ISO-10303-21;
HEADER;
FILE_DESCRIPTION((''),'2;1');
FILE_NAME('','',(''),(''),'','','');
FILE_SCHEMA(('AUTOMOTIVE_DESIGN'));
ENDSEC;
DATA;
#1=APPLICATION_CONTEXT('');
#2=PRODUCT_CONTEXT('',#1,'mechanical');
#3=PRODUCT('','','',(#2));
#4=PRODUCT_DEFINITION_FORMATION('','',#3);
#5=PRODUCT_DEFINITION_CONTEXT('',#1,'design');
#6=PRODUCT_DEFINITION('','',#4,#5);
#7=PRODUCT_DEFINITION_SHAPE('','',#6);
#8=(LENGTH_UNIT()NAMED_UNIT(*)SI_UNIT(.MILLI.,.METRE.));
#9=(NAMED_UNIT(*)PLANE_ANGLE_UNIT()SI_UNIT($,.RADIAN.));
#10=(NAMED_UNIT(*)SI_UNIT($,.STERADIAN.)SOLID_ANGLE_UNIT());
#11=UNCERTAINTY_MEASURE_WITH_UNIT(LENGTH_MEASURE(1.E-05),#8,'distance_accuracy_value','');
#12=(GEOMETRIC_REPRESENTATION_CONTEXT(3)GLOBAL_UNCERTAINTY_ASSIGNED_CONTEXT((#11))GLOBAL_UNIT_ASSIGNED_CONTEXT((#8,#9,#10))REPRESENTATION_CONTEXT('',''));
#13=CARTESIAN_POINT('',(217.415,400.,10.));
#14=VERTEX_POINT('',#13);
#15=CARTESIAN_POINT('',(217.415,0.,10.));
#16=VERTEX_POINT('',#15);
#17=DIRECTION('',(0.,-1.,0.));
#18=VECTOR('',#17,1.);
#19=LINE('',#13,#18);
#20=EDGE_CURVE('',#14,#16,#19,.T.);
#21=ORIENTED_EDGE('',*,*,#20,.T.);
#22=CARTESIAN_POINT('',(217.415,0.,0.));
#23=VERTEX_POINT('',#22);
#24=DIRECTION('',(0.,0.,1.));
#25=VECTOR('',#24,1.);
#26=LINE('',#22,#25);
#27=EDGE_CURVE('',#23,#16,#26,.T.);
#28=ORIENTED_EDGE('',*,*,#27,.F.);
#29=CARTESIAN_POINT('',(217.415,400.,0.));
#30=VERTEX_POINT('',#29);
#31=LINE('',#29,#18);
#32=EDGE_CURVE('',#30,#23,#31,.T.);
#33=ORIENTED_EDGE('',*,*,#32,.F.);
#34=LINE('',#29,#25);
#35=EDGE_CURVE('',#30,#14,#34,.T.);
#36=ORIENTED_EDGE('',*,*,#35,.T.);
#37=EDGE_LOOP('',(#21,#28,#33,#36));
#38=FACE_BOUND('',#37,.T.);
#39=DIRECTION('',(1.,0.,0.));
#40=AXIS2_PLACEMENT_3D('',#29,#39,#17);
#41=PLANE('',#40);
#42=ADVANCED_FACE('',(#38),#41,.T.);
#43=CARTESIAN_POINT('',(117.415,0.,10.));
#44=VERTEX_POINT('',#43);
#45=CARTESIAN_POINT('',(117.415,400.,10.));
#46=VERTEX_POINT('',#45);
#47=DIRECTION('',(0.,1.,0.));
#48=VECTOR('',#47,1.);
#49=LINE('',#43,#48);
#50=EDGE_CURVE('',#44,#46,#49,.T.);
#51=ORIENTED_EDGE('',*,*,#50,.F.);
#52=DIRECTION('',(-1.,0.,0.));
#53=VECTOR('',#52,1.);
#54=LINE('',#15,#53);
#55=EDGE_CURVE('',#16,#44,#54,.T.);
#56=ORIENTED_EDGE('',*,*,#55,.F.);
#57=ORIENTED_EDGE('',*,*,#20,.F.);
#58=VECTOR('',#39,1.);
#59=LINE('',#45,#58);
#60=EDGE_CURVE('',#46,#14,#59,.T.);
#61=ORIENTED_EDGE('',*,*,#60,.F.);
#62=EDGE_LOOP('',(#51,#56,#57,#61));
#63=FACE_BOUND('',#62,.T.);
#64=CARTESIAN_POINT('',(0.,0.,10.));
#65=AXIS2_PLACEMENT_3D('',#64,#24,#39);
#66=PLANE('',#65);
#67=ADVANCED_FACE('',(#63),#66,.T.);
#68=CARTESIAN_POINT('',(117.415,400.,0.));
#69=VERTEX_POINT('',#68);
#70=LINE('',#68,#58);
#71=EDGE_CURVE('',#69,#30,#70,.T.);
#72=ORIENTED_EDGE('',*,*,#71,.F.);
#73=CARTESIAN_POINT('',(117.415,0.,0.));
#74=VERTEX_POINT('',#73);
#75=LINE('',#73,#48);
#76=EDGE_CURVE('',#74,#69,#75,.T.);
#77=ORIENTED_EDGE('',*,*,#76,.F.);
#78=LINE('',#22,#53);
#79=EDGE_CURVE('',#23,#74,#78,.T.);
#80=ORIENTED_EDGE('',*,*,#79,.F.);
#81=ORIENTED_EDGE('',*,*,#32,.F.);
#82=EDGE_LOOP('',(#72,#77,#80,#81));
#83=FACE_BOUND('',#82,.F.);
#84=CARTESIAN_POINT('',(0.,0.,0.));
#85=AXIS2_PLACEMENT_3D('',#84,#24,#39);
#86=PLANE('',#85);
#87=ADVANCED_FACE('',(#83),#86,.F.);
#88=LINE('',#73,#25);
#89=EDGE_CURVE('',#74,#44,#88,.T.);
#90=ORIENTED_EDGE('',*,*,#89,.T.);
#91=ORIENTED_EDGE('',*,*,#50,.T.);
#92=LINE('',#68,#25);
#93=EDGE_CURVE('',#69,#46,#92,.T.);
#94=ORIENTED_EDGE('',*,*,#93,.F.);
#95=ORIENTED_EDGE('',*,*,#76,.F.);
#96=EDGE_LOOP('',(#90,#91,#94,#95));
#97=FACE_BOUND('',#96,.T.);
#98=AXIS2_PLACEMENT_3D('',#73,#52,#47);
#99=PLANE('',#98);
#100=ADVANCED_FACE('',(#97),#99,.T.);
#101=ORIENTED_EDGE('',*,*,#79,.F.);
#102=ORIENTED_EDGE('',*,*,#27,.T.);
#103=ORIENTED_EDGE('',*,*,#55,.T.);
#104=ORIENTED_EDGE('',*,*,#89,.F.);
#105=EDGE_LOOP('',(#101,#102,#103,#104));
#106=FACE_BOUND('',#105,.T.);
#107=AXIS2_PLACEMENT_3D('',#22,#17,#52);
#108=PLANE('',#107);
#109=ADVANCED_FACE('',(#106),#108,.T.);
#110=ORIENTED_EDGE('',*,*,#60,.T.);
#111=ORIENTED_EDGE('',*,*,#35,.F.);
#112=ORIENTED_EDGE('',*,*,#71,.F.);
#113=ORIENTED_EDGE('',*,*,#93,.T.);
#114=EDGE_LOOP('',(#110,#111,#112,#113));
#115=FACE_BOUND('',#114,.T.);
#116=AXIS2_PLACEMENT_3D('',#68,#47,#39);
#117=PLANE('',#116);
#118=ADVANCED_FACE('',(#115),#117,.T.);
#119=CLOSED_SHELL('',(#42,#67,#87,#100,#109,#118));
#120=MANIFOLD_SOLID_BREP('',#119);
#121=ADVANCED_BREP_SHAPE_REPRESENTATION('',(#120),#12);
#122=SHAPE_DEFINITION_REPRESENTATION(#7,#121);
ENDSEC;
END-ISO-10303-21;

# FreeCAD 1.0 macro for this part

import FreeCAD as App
import Part
import Sketcher

doc = App.newDocument("Part")
params = doc.addObject("Spreadsheet::Sheet", "Params")
for row, (alias, value) in enumerate([
    ("sketch1_width", "100 mm"),
    ("sketch1_height", "400 mm"),
    ("pad1_length", "10 mm"),
], start=1):
    params.set(f"A{row}", alias)
    params.set(f"B{row}", "=" + value)
    params.setAlias(f"B{row}", alias)

body = doc.addObject("PartDesign::Body", "Body")

# Sketch on XY plane
sketch1 = body.newObject("Sketcher::SketchObject", "Sketch")
sketch1.AttachmentSupport = (doc.getObject("XY_Plane"), [""])
sketch1.MapMode = "FlatFace"
sketch1.addGeometry([
    Part.LineSegment(App.Vector(117.415, 0, 0), App.Vector(217.415, 0, 0)),
    Part.LineSegment(App.Vector(217.415, 0, 0), App.Vector(217.415, 400, 0)),
    Part.LineSegment(App.Vector(217.415, 400, 0), App.Vector(117.415, 400, 0)),
    Part.LineSegment(App.Vector(117.415, 400, 0), App.Vector(117.415, 0, 0)),
], False)
sketch1.addConstraint([
    Sketcher.Constraint("Coincident", 0, 2, 1, 1),
    Sketcher.Constraint("Coincident", 1, 2, 2, 1),
    Sketcher.Constraint("Coincident", 2, 2, 3, 1),
    Sketcher.Constraint("Coincident", 3, 2, 0, 1),
    Sketcher.Constraint("Horizontal", 0),
    Sketcher.Constraint("Vertical", 1),
    Sketcher.Constraint("Horizontal", 2),
    Sketcher.Constraint("Vertical", 3),
    Sketcher.Constraint("PointOnObject", 0, 2, -1),
    Sketcher.Constraint("DistanceX", 0, 1, 0, 2, 100.0),
    Sketcher.Constraint("DistanceY", 1, 1, 1, 2, 400.0),
    Sketcher.Constraint("DistanceX", -1, 1, 0, 2, 217.415),
])
sketch1.setExpression("Constraints[9]", "Params.sketch1_width")
sketch1.setExpression("Constraints[10]", "Params.sketch1_height")
pad1 = body.newObject("PartDesign::Pad", "Pad")
pad1.Profile = sketch1
pad1.setExpression("Length", "Params.pad1_length")

doc.recompute()
